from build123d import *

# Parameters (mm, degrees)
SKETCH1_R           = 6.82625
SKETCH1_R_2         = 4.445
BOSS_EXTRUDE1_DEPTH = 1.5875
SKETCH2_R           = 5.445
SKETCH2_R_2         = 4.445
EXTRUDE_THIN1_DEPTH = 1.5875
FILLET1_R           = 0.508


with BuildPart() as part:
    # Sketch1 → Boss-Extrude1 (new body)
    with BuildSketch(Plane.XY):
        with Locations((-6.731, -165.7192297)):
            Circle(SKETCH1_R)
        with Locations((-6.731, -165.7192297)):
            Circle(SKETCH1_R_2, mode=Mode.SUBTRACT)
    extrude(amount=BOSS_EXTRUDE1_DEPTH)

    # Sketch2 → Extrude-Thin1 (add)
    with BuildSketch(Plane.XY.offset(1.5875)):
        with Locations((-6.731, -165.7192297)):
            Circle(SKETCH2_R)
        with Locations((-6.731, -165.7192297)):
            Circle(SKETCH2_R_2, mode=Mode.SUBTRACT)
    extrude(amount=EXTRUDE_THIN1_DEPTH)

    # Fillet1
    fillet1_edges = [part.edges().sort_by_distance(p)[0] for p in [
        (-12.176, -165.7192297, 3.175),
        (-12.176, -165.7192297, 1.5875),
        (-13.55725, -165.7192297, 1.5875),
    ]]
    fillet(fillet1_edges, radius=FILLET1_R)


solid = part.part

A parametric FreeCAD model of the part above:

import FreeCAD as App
import Part
import Sketcher
Q = App.Units.Quantity


def edges_at(feature, points):
    """Names of the edges that pass closest to the given points."""
    edges = feature.Shape.Edges
    near = lambda p: min(range(len(edges)), key=lambda i: edges[i].distToShape(Part.Vertex(*p))[0])
    return sorted({f"Edge{near(p) + 1}" for p in points})

doc = App.newDocument("Part")
body = doc.addObject("PartDesign::Body", "Body")

sketch1 = body.newObject("Sketcher::SketchObject", "Sketch")
sketch1.AttachmentSupport = (doc.getObject("XY_Plane"), [""])
sketch1.MapMode = "FlatFace"
sketch1.addGeometry([
    Part.Circle(App.Vector(-6.7, -165.7, 0), App.Vector(0, 0, 1), 6.8),
    Part.Circle(App.Vector(-6.7, -165.7, 0), App.Vector(0, 0, 1), 4.4),
], False)
sketch1.addConstraint([
    Sketcher.Constraint("Coincident", 1, 3, 0, 3),
    Sketcher.Constraint("Diameter", 1, Q("0.35 in")),
    Sketcher.Constraint("Diameter", 0, Q("0.5375 in")),
    Sketcher.Constraint("DistanceX", 0, 3, -1, 1, Q("0.265 in")),
    Sketcher.Constraint("DistanceY", 0, 3, -1, 1, 165.71923),
])
pad1 = body.newObject("PartDesign::Pad", "Pad")
pad1.Profile = sketch1
pad1.Length = Q("0.0625 in")

sketch2 = body.newObject("Sketcher::SketchObject", "Sketch001")
sketch2.AttachmentSupport = (doc.getObject("XY_Plane"), [""])
sketch2.MapMode = "FlatFace"
sketch2.AttachmentOffset = App.Placement(App.Vector(0, 0, 0.0625 * 25.4), App.Rotation())
sketch2.addGeometry([
    Part.Circle(App.Vector(-6.7, -165.7, 0), App.Vector(0, 0, 1), 5.4),
    Part.Circle(App.Vector(-6.7, -165.7, 0), App.Vector(0, 0, 1), 4.4),
], False)
sketch2.addConstraint([
    Sketcher.Constraint("Coincident", 1, 3, 0, 3),
    Sketcher.Constraint("Diameter", 1, Q("0.35 in")),
    Sketcher.Constraint("Diameter", 0, 10.89),
    Sketcher.Constraint("DistanceX", 0, 3, -1, 1, Q("0.265 in")),
    Sketcher.Constraint("DistanceY", 0, 3, -1, 1, 165.71923),
])
pad2 = body.newObject("PartDesign::Pad", "Pad001")
pad2.Profile = sketch2
pad2.Length = Q("0.0625 in")
doc.recompute()

fillet = body.newObject("PartDesign::Fillet", "Fillet")
fillet.Base = (pad2, edges_at(pad2, [(-12.176, -165.719, 3.175), (-12.176, -165.719, 1.587), (-13.557, -165.719, 1.587)]))
fillet.Radius = Q("0.02 in")

doc.recompute()
